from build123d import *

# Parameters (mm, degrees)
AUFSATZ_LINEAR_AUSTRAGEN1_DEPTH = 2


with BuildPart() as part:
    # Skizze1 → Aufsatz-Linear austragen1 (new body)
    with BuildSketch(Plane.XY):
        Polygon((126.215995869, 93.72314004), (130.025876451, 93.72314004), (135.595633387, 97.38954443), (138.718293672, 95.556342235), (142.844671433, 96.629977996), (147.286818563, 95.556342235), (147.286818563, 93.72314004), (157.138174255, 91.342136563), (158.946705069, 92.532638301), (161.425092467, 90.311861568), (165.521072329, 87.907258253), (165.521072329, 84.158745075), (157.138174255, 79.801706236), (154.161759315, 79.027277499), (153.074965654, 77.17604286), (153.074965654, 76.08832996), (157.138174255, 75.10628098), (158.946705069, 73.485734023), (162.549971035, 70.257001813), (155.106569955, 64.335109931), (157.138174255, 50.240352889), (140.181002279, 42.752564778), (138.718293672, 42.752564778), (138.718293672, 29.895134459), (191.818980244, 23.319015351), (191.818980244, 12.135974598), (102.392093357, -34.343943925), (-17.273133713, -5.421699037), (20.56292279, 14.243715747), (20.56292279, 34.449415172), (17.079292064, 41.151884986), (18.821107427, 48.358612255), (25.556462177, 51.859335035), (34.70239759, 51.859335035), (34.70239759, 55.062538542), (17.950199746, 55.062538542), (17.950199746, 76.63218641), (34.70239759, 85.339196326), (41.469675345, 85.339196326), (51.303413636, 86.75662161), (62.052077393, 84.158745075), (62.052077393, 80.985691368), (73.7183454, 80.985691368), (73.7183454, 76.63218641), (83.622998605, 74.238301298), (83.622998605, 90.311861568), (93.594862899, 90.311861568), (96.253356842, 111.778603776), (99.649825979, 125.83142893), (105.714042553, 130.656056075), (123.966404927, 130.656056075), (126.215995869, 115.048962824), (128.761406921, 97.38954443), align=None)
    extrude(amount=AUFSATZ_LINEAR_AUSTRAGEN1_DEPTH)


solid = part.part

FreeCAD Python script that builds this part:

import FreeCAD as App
import Part
import Sketcher

V = App.Vector
Q = App.Units.Quantity

doc = App.newDocument("Part")
body = doc.addObject("PartDesign::Body", "Body")

sketch1 = body.newObject("Sketcher::SketchObject", "Sketch")
sketch1.AttachmentSupport = (doc.getObject("XY_Plane"), [""])
sketch1.MapMode = "FlatFace"
sketch1.addGeometry([
    Part.LineSegment(V(130.025876, 93.72314, 0), V(126.215996, 93.72314, 0)),
    Part.LineSegment(V(126.215996, 93.72314, 0), V(128.761407, 97.389544, 0)),
    Part.LineSegment(V(128.761407, 97.389544, 0), V(126.215996, 115.048963, 0)),
    Part.LineSegment(V(126.215996, 115.048963, 0), V(123.966405, 130.656056, 0)),
    Part.LineSegment(V(123.966405, 130.656056, 0), V(105.714043, 130.656056, 0)),
    Part.LineSegment(V(105.714043, 130.656056, 0), V(99.649826, 125.831429, 0)),
    Part.LineSegment(V(99.649826, 125.831429, 0), V(96.253357, 111.778604, 0)),
    Part.LineSegment(V(96.253357, 111.778604, 0), V(93.594863, 90.311862, 0)),
    Part.LineSegment(V(93.594863, 90.311862, 0), V(83.622999, 90.311862, 0)),
    Part.LineSegment(V(83.622999, 90.311862, 0), V(83.622999, 74.238301, 0)),
    Part.LineSegment(V(83.622999, 74.238301, 0), V(73.718345, 76.632186, 0)),
    Part.LineSegment(V(73.718345, 76.632186, 0), V(73.718345, 80.985691, 0)),
    Part.LineSegment(V(73.718345, 80.985691, 0), V(62.052077, 80.985691, 0)),
    Part.LineSegment(V(62.052077, 80.985691, 0), V(62.052077, 84.158745, 0)),
    Part.LineSegment(V(62.052077, 84.158745, 0), V(51.303414, 86.756622, 0)),
    Part.LineSegment(V(51.303414, 86.756622, 0), V(41.469675, 85.339196, 0)),
    Part.LineSegment(V(41.469675, 85.339196, 0), V(34.702398, 85.339196, 0)),
    Part.LineSegment(V(34.702398, 85.339196, 0), V(17.9502, 76.632186, 0)),
    Part.LineSegment(V(17.9502, 76.632186, 0), V(17.9502, 55.062539, 0)),
    Part.LineSegment(V(17.9502, 55.062539, 0), V(34.702398, 55.062539, 0)),
    Part.LineSegment(V(34.702398, 55.062539, 0), V(34.702398, 51.859335, 0)),
    Part.LineSegment(V(34.702398, 51.859335, 0), V(25.556462, 51.859335, 0)),
    Part.LineSegment(V(25.556462, 51.859335, 0), V(18.821107, 48.358612, 0)),
    Part.LineSegment(V(18.821107, 48.358612, 0), V(17.079292, 41.151885, 0)),
    Part.LineSegment(V(17.079292, 41.151885, 0), V(20.562923, 34.449415, 0)),
    Part.LineSegment(V(20.562923, 34.449415, 0), V(20.562923, 14.243716, 0)),
    Part.LineSegment(V(20.562923, 14.243716, 0), V(-17.273134, -5.421699, 0)),
    Part.LineSegment(V(-17.273134, -5.421699, 0), V(102.392093, -34.343944, 0)),
    Part.LineSegment(V(102.392093, -34.343944, 0), V(191.81898, 12.135975, 0)),
    Part.LineSegment(V(191.81898, 12.135975, 0), V(191.81898, 23.319015, 0)),
    Part.LineSegment(V(191.81898, 23.319015, 0), V(138.718294, 29.895134, 0)),
    Part.LineSegment(V(138.718294, 29.895134, 0), V(138.718294, 42.752565, 0)),
    Part.LineSegment(V(138.718294, 42.752565, 0), V(140.181002, 42.752565, 0)),
    Part.LineSegment(V(140.181002, 42.752565, 0), V(157.138174, 50.240353, 0)),
    Part.LineSegment(V(157.138174, 50.240353, 0), V(155.10657, 64.33511, 0)),
    Part.LineSegment(V(155.10657, 64.33511, 0), V(162.549971, 70.257002, 0)),
    Part.LineSegment(V(162.549971, 70.257002, 0), V(158.946705, 73.485734, 0)),
    Part.LineSegment(V(158.946705, 73.485734, 0), V(157.138174, 75.106281, 0)),
    Part.LineSegment(V(157.138174, 75.106281, 0), V(153.074966, 76.08833, 0)),
    Part.LineSegment(V(153.074966, 76.08833, 0), V(153.074966, 77.176043, 0)),
    Part.LineSegment(V(153.074966, 77.176043, 0), V(154.161759, 79.027277, 0)),
    Part.LineSegment(V(154.161759, 79.027277, 0), V(157.138174, 79.801706, 0)),
    Part.LineSegment(V(157.138174, 79.801706, 0), V(165.521072, 84.158745, 0)),
    Part.LineSegment(V(165.521072, 84.158745, 0), V(165.521072, 87.907258, 0)),
    Part.LineSegment(V(165.521072, 87.907258, 0), V(161.425092, 90.311862, 0)),
    Part.LineSegment(V(161.425092, 90.311862, 0), V(158.946705, 92.532638, 0)),
    Part.LineSegment(V(158.946705, 92.532638, 0), V(157.138174, 91.342137, 0)),
    Part.LineSegment(V(157.138174, 91.342137, 0), V(147.286819, 93.72314, 0)),
    Part.LineSegment(V(147.286819, 93.72314, 0), V(147.286819, 95.556342, 0)),
    Part.LineSegment(V(147.286819, 95.556342, 0), V(142.844671, 96.629978, 0)),
    Part.LineSegment(V(142.844671, 96.629978, 0), V(138.718294, 95.556342, 0)),
    Part.LineSegment(V(138.718294, 95.556342, 0), V(135.595633, 97.389544, 0)),
    Part.LineSegment(V(135.595633, 97.389544, 0), V(130.025876, 93.72314, 0)),
], False)
sketch1.addConstraint([
    Sketcher.Constraint("Coincident", 0, 2, 1, 1),
    Sketcher.Constraint("Coincident", 1, 2, 2, 1),
    Sketcher.Constraint("Coincident", 2, 2, 3, 1),
    Sketcher.Constraint("Coincident", 3, 2, 4, 1),
    Sketcher.Constraint("Coincident", 4, 2, 5, 1),
    Sketcher.Constraint("Coincident", 5, 2, 6, 1),
    Sketcher.Constraint("Coincident", 6, 2, 7, 1),
    Sketcher.Constraint("Coincident", 7, 2, 8, 1),
    Sketcher.Constraint("Coincident", 8, 2, 9, 1),
    Sketcher.Constraint("Coincident", 9, 2, 10, 1),
    Sketcher.Constraint("Coincident", 10, 2, 11, 1),
    Sketcher.Constraint("Coincident", 11, 2, 12, 1),
    Sketcher.Constraint("Coincident", 12, 2, 13, 1),
    Sketcher.Constraint("Coincident", 13, 2, 14, 1),
    Sketcher.Constraint("Coincident", 14, 2, 15, 1),
    Sketcher.Constraint("Coincident", 15, 2, 16, 1),
    Sketcher.Constraint("Coincident", 16, 2, 17, 1),
    Sketcher.Constraint("Coincident", 17, 2, 18, 1),
    Sketcher.Constraint("Coincident", 18, 2, 19, 1),
    Sketcher.Constraint("Coincident", 19, 2, 20, 1),
    Sketcher.Constraint("Coincident", 20, 2, 21, 1),
    Sketcher.Constraint("Coincident", 21, 2, 22, 1),
    Sketcher.Constraint("Coincident", 22, 2, 23, 1),
    Sketcher.Constraint("Coincident", 23, 2, 24, 1),
    Sketcher.Constraint("Coincident", 24, 2, 25, 1),
    Sketcher.Constraint("Coincident", 25, 2, 26, 1),
    Sketcher.Constraint("Coincident", 26, 2, 27, 1),
    Sketcher.Constraint("Coincident", 27, 2, 28, 1),
    Sketcher.Constraint("Coincident", 28, 2, 29, 1),
    Sketcher.Constraint("Coincident", 29, 2, 30, 1),
    Sketcher.Constraint("Coincident", 30, 2, 31, 1),
    Sketcher.Constraint("Coincident", 31, 2, 32, 1),
    Sketcher.Constraint("Coincident", 32, 2, 33, 1),
    Sketcher.Constraint("Coincident", 33, 2, 34, 1),
    Sketcher.Constraint("Coincident", 34, 2, 35, 1),
    Sketcher.Constraint("Coincident", 35, 2, 36, 1),
    Sketcher.Constraint("Coincident", 36, 2, 37, 1),
    Sketcher.Constraint("Coincident", 37, 2, 38, 1),
    Sketcher.Constraint("Coincident", 38, 2, 39, 1),
    Sketcher.Constraint("Coincident", 39, 2, 40, 1),
    Sketcher.Constraint("Coincident", 40, 2, 41, 1),
    Sketcher.Constraint("Coincident", 41, 2, 42, 1),
    Sketcher.Constraint("Coincident", 42, 2, 43, 1),
    Sketcher.Constraint("Coincident", 43, 2, 44, 1),
    Sketcher.Constraint("Coincident", 44, 2, 45, 1),
    Sketcher.Constraint("Coincident", 45, 2, 46, 1),
    Sketcher.Constraint("Coincident", 46, 2, 47, 1),
    Sketcher.Constraint("Coincident", 47, 2, 48, 1),
    Sketcher.Constraint("Coincident", 48, 2, 49, 1),
    Sketcher.Constraint("Coincident", 49, 2, 50, 1),
    Sketcher.Constraint("Coincident", 50, 2, 51, 1),
    Sketcher.Constraint("Coincident", 51, 2, 52, 1),
    Sketcher.Constraint("Coincident", 52, 2, 0, 1),
    Sketcher.Constraint("Horizontal", 0),
    Sketcher.Constraint("Horizontal", 4),
    Sketcher.Constraint("Horizontal", 8),
    Sketcher.Constraint("Vertical", 9),
    Sketcher.Constraint("Vertical", 11),
    Sketcher.Constraint("Horizontal", 12),
    Sketcher.Constraint("Vertical", 13),
    Sketcher.Constraint("Horizontal", 16),
    Sketcher.Constraint("Vertical", 18),
    Sketcher.Constraint("Horizontal", 19),
    Sketcher.Constraint("Vertical", 20),
    Sketcher.Constraint("Horizontal", 21),
    Sketcher.Constraint("Vertical", 25),
    Sketcher.Constraint("Vertical", 29),
    Sketcher.Constraint("Vertical", 31),
    Sketcher.Constraint("Horizontal", 32),
    Sketcher.Constraint("Vertical", 39),
    Sketcher.Constraint("Vertical", 43),
    Sketcher.Constraint("Vertical", 48),
    Sketcher.Constraint("Distance", 51, Q("3.621 mm")),
    Sketcher.Constraint("DistanceY", 25, 2, 25, 1, Q("20.205699 mm")),
    Sketcher.Constraint("DistanceX", -1, 1, 8, 2, Q("83.622999 mm")),
    Sketcher.Constraint("DistanceY", -1, 1, 35, 2, Q("70.257002 mm")),
    Sketcher.Constraint("DistanceX", 3, 2, 1, 2, Q("4.795002 mm")),
    Sketcher.Constraint("Distance", 38, Q("4.180201 mm")),
    Sketcher.Constraint("Distance", 45, Q("3.3278 mm")),
    Sketcher.Constraint("DistanceX", 0, 2, 0, 1, Q("3.809881 mm")),
    Sketcher.Constraint("DistanceX", 12, 2, 12, 1, Q("11.666268 mm")),
    Sketcher.Constraint("DistanceX", 32, 1, 32, 2, Q("1.462709 mm")),
    Sketcher.Constraint("DistanceY", 9, 2, 9, 1, Q("16.07356 mm")),
    Sketcher.Constraint("DistanceY", 29, 1, 29, 2, Q("11.183041 mm")),
    Sketcher.Constraint("DistanceY", 31, 1, 31, 2, Q("12.85743 mm")),
    Sketcher.Constraint("DistanceY", -1, 1, 9, 2, Q("74.238301 mm")),
    Sketcher.Constraint("DistanceX", -1, 1, 17, 2, Q("17.9502 mm")),
    Sketcher.Constraint("DistanceY", 26, 2, -1, 1, Q("5.421699 mm")),
    Sketcher.Constraint("DistanceY", 7, 2, 2, 2, Q("24.737101 mm")),
    Sketcher.Constraint("DistanceX", 34, 2, 35, 2, Q("7.443401 mm")),
    Sketcher.Constraint("DistanceX", 41, 2, 42, 2, Q("8.382898 mm")),
    Sketcher.Constraint("DistanceX", 37, 2, 42, 2, Q("8.382898 mm")),
    Sketcher.Constraint("DistanceX", 35, 2, 42, 2, Q("2.971101 mm")),
    Sketcher.Constraint("DistanceY", 46, 2, 45, 2, Q("1.190502 mm")),
    Sketcher.Constraint("DistanceX", 46, 2, 43, 2, Q("8.382898 mm")),
    Sketcher.Constraint("DistanceY", 45, 2, 47, 2, Q("1.190502 mm")),
    Sketcher.Constraint("Distance", 2, Q("17.841922 mm")),
    Sketcher.Constraint("Distance", 6, Q("14.457451 mm")),
    Sketcher.Constraint("Distance", 10, Q("10.18984 mm")),
    Sketcher.Constraint("Distance", 22, Q("7.590788 mm")),
    Sketcher.Constraint("Distance", 26, Q("42.641479 mm")),
    Sketcher.Constraint("Distance", 30, Q("53.506338 mm")),
    Sketcher.Constraint("Distance", 33, Q("18.536792 mm")),
    Sketcher.Constraint("Distance", 34, Q("14.240421 mm")),
    Sketcher.Constraint("Distance", 35, Q("9.511731 mm")),
    Sketcher.Constraint("Distance", 40, Q("2.14667 mm")),
    Sketcher.Constraint("Distance", 42, Q("9.44758 mm")),
    Sketcher.Constraint("Distance", 44, Q("4.749649 mm")),
    Sketcher.Constraint("Distance", 49, Q("4.570051 mm")),
    Sketcher.Constraint("DistanceX", 4, 2, 4, 1, Q("18.252362 mm")),
    Sketcher.Constraint("DistanceX", 8, 2, 8, 1, Q("9.971864 mm")),
    Sketcher.Constraint("DistanceX", 16, 2, 16, 1, Q("6.767278 mm")),
    Sketcher.Constraint("DistanceX", 19, 1, 19, 2, Q("16.752198 mm")),
    Sketcher.Constraint("DistanceX", 21, 2, 21, 1, Q("9.145935 mm")),
    Sketcher.Constraint("DistanceY", 11, 1, 11, 2, Q("4.353505 mm")),
    Sketcher.Constraint("DistanceY", 13, 1, 13, 2, Q("3.173054 mm")),
    Sketcher.Constraint("DistanceY", 18, 2, 18, 1, Q("21.569648 mm")),
    Sketcher.Constraint("DistanceY", 20, 2, 20, 1, Q("3.203204 mm")),
    Sketcher.Constraint("DistanceY", 39, 1, 39, 2, Q("1.087713 mm")),
    Sketcher.Constraint("DistanceY", 43, 1, 43, 2, Q("3.748513 mm")),
    Sketcher.Constraint("DistanceY", 48, 1, 48, 2, Q("1.833202 mm")),
    Sketcher.Constraint("DistanceY", -1, 1, 0, 2, Q("93.72314 mm")),
    Sketcher.Constraint("DistanceY", -1, 1, 5, 2, Q("125.831429 mm")),
    Sketcher.Constraint("DistanceY", -1, 1, 11, 2, Q("80.985691 mm")),
    Sketcher.Constraint("DistanceY", -1, 1, 14, 2, Q("86.756622 mm")),
    Sketcher.Constraint("DistanceY", -1, 1, 18, 2, Q("55.062539 mm")),
    Sketcher.Constraint("DistanceX", -1, 1, 28, 2, Q("191.81898 mm")),
    Sketcher.Constraint("DistanceX", -1, 1, 34, 2, Q("155.10657 mm")),
    Sketcher.Constraint("DistanceY", -1, 1, 37, 2, Q("75.106281 mm")),
    Sketcher.Constraint("DistanceY", -1, 1, 38, 2, Q("76.08833 mm")),
    Sketcher.Constraint("DistanceX", -1, 1, 40, 2, Q("154.161759 mm")),
    Sketcher.Constraint("DistanceY", -1, 1, 43, 2, Q("87.907258 mm")),
    Sketcher.Constraint("DistanceY", -1, 1, 44, 2, Q("90.311862 mm")),
    Sketcher.Constraint("DistanceY", -1, 1, 45, 2, Q("92.532638 mm")),
    Sketcher.Constraint("DistanceX", -1, 1, 47, 2, Q("147.286819 mm")),
    Sketcher.Constraint("DistanceX", -1, 1, 49, 2, Q("142.844671 mm")),
    Sketcher.Constraint("DistanceX", 0, 2, 1, 2, Q("2.545411 mm")),
    Sketcher.Constraint("DistanceX", 2, 2, 1, 2, Q("2.545411 mm")),
    Sketcher.Constraint("DistanceY", 1, 2, 3, 2, Q("33.266512 mm")),
    Sketcher.Constraint("DistanceX", 5, 2, 3, 2, Q("24.316579 mm")),
    Sketcher.Constraint("DistanceX", 6, 2, 5, 2, Q("3.396469 mm")),
    Sketcher.Constraint("DistanceX", 8, 2, 6, 2, Q("12.630358 mm")),
    Sketcher.Constraint("DistanceX", 14, 2, 11, 2, Q("22.414932 mm")),
    Sketcher.Constraint("DistanceX", 15, 2, 14, 2, Q("9.833738 mm")),
    Sketcher.Constraint("DistanceY", 13, 2, 15, 2, Q("1.180451 mm")),
    Sketcher.Constraint("DistanceX", 22, 2, 20, 2, Q("15.88129 mm")),
    Sketcher.Constraint("DistanceX", 23, 2, 21, 2, Q("8.47717 mm")),
    Sketcher.Constraint("DistanceY", 23, 2, 21, 2, Q("10.70745 mm")),
    Sketcher.Constraint("DistanceX", 23, 2, 24, 2, Q("3.483631 mm")),
    Sketcher.Constraint("DistanceY", 24, 2, 23, 2, Q("6.70247 mm")),
    Sketcher.Constraint("DistanceX", 25, 2, 27, 2, Q("81.829171 mm")),
    Sketcher.Constraint("DistanceY", 27, 2, 25, 2, Q("48.58766 mm")),
    Sketcher.Constraint("DistanceY", 27, 2, 28, 2, Q("46.479919 mm")),
    Sketcher.Constraint("DistanceY", 29, 2, 30, 2, Q("6.576119 mm")),
    Sketcher.Constraint("DistanceX", 33, 2, 36, 2, Q("1.808531 mm")),
    Sketcher.Constraint("DistanceY", 33, 2, 36, 2, Q("23.245381 mm")),
    Sketcher.Constraint("DistanceX", 51, 2, 50, 2, Q("3.12266 mm")),
    Sketcher.Constraint("DistanceX", 51, 2, 49, 2, Q("7.249038 mm")),
    Sketcher.Constraint("Distance", 50, Q("4.263764 mm")),
])
pad1 = body.newObject("PartDesign::Pad", "Pad")
pad1.Profile = sketch1
pad1.Length = 2

doc.recompute()
